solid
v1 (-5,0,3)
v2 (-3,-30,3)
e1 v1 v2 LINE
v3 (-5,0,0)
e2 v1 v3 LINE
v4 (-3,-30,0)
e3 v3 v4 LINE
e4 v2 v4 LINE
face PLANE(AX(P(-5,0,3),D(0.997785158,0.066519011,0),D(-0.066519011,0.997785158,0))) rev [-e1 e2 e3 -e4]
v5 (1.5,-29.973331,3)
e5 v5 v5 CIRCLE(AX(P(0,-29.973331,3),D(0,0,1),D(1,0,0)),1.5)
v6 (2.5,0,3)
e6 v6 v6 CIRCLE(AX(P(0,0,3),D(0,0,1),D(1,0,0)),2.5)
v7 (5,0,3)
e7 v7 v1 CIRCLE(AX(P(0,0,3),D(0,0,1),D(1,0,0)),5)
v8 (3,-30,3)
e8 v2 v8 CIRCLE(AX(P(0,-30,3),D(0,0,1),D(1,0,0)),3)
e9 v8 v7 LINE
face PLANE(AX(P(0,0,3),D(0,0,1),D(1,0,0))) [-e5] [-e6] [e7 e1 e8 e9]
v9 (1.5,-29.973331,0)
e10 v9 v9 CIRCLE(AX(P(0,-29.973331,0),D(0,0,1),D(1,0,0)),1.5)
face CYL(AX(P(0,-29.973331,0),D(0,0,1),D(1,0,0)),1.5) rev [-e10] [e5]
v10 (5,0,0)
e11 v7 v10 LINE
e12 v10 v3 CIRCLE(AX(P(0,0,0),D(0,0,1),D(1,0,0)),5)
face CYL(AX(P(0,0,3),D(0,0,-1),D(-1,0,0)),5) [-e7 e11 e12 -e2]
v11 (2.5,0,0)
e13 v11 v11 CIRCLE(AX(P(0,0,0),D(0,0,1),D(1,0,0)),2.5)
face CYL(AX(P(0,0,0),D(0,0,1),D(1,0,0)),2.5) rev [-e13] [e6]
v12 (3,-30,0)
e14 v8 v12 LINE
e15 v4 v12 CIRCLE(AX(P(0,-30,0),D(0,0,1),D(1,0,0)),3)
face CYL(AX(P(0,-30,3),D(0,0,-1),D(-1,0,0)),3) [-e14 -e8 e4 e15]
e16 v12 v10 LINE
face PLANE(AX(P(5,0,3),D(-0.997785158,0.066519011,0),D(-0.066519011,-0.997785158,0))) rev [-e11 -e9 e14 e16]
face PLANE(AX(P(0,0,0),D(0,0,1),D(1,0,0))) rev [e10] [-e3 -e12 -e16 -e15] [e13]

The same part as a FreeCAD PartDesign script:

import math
import FreeCAD as App
import Part
import Sketcher
Q = App.Units.Quantity

doc = App.newDocument("Part")
body = doc.addObject("PartDesign::Body", "Body")

sketch1 = body.newObject("Sketcher::SketchObject", "Sketch")
sketch1.AttachmentSupport = (doc.getObject("XY_Plane"), [""])
sketch1.MapMode = "FlatFace"
sketch1.addGeometry([
    Part.LineSegment(App.Vector(-5, 0, 0), App.Vector(-3, -30, 0)),
    Part.ArcOfCircle(Part.Circle(App.Vector(0, -30, 0), App.Vector(0, 0, 1), 3), math.radians(180), math.radians(360)),
    Part.LineSegment(App.Vector(3, -30, 0), App.Vector(5, 0, 0)),
    Part.ArcOfCircle(Part.Circle(App.Vector(0, 0, 0), App.Vector(0, 0, 1), 5), math.radians(0), math.radians(180)),
], False)
sketch1.addConstraint([
    Sketcher.Constraint("Coincident", 0, 2, 1, 1),
    Sketcher.Constraint("Coincident", 1, 2, 2, 1),
    Sketcher.Constraint("Coincident", 2, 2, 3, 1),
    Sketcher.Constraint("Coincident", 3, 2, 0, 1),
    Sketcher.Constraint("Coincident", 3, 3, -1, 1),
    Sketcher.Constraint("Symmetric", 0, 2, 1, 2, -2),
    Sketcher.Constraint("PointOnObject", 2, 2, -1),
    Sketcher.Constraint("PointOnObject", 3, 2, -1),
    Sketcher.Constraint("Horizontal", 1, 3, 0, 2),
    Sketcher.Constraint("Radius", 1, Q("3 mm")),
    Sketcher.Constraint("Radius", 3, Q("5 mm")),
    Sketcher.Constraint("DistanceY", 1, 3, -1, 1, Q("30 mm")),
])
pad1 = body.newObject("PartDesign::Pad", "Pad")
pad1.Profile = sketch1
pad1.Length = 3

sketch2 = body.newObject("Sketcher::SketchObject", "Sketch001")
sketch2.AttachmentSupport = (doc.getObject("XY_Plane"), [""])
sketch2.MapMode = "FlatFace"
sketch2.AttachmentOffset = App.Placement(App.Vector(0, 0, 3), App.Rotation())
sketch2.addGeometry(Part.Circle(App.Vector(0, 0, 0), App.Vector(0, 0, 1), 2.5), False)
sketch2.addConstraint([
    Sketcher.Constraint("Coincident", 0, 3, -1, 1),
    Sketcher.Constraint("Diameter", 0, Q("5 mm")),
])
pocket1 = body.newObject("PartDesign::Pocket", "Pocket")
pocket1.Profile = sketch2
pocket1.Type = "ThroughAll"

sketch3 = body.newObject("Sketcher::SketchObject", "Sketch002")
sketch3.AttachmentSupport = (doc.getObject("XY_Plane"), [""])
sketch3.MapMode = "FlatFace"
sketch3.AttachmentOffset = App.Placement(App.Vector(0, 0, 3), App.Rotation())
sketch3.addGeometry(Part.Circle(App.Vector(0, -29.973331, 0), App.Vector(0, 0, 1), 1.5), False)
sketch3.addConstraint([
    Sketcher.Constraint("PointOnObject", 0, 3, -2),
    Sketcher.Constraint("Diameter", 0, Q("3 mm")),
    Sketcher.Constraint("DistanceY", 0, 3, -1, 1, Q("29.973331 mm")),
])
pocket2 = body.newObject("PartDesign::Pocket", "Pocket001")
pocket2.Profile = sketch3
pocket2.Type = "ThroughAll"

doc.recompute()
